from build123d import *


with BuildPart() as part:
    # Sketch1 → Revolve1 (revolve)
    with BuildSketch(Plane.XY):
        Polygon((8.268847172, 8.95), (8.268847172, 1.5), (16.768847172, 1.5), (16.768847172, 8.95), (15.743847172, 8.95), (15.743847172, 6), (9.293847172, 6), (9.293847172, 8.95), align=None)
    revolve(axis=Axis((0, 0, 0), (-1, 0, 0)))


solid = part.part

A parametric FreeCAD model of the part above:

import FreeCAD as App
import Part
import Sketcher

V = App.Vector


def add_polygon(sketch, points):
    """Adds a closed chain of lines whose ends are joined by coincident constraints."""
    first, n = sketch.GeometryCount, len(points)
    for a, b in zip(points, points[1:] + points[:1]):
        sketch.addGeometry(Part.LineSegment(App.Vector(*a, 0), App.Vector(*b, 0)), False)
    for i in range(n):
        sketch.addConstraint(Sketcher.Constraint("Coincident", first + i, 2, first + (i + 1) % n, 1))

doc = App.newDocument("Part")
body = doc.addObject("PartDesign::Body", "Body")

sketch1 = body.newObject("Sketcher::SketchObject", "Sketch")
sketch1.AttachmentSupport = (doc.getObject("XY_Plane"), [""])
sketch1.MapMode = "FlatFace"
add_polygon(sketch1, [(8.268847, 8.95), (8.268847, 1.5), (16.768847, 1.5), (16.768847, 8.95), (15.743847, 8.95), (15.743847, 6), (9.293847, 6), (9.293847, 8.95)])
sketch1.addConstraint([
    Sketcher.Constraint("Vertical", 0),
    Sketcher.Constraint("Horizontal", 1),
    Sketcher.Constraint("Vertical", 2),
    Sketcher.Constraint("Horizontal", 3),
    Sketcher.Constraint("Vertical", 4),
    Sketcher.Constraint("Horizontal", 5),
    Sketcher.Constraint("Vertical", 6),
    Sketcher.Constraint("Horizontal", 7),
    Sketcher.Constraint("Horizontal", 3, 2, 6, 2),
    Sketcher.Constraint("Equal", 3, 7),
    Sketcher.Constraint("DistanceX", 1, 1, 1, 2, 8.5),
    Sketcher.Constraint("DistanceY", -1, 1, 4, 2, 6.0),
    Sketcher.Constraint("DistanceX", 5, 2, 5, 1, 6.45),
    Sketcher.Constraint("DistanceY", 0, 2, 0, 1, 7.45),
    Sketcher.Constraint("DistanceY", 4, 2, 4, 1, 2.95),
    Sketcher.Constraint("DistanceX", -1, 1, 0, 2, 8.268847),
])
revolution = body.newObject("PartDesign::Revolution", "Revolution")
revolution.Profile = sketch1
revolution.ReferenceAxis = (sketch1, ["H_Axis"])
revolution.Angle = 360

doc.recompute()
